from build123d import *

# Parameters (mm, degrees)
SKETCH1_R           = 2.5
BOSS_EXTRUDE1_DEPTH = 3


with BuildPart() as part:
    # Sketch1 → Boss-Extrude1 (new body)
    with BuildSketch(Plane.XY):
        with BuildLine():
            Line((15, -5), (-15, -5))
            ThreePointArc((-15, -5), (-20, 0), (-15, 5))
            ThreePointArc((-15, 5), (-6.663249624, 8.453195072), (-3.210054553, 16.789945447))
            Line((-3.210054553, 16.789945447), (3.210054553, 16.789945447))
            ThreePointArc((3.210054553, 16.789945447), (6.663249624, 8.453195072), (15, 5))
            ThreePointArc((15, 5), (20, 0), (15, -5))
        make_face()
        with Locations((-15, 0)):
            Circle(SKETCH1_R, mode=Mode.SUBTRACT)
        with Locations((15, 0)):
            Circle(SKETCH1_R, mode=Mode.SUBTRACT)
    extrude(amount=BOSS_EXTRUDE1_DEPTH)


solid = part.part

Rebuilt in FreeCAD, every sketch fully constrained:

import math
import FreeCAD as App
import Part
import Sketcher
Q = App.Units.Quantity

doc = App.newDocument("Part")
body = doc.addObject("PartDesign::Body", "Body")

sketch1 = body.newObject("Sketcher::SketchObject", "Sketch")
sketch1.AttachmentSupport = (doc.getObject("XY_Plane"), [""])
sketch1.MapMode = "FlatFace"
sketch1.addGeometry([
    Part.LineSegment(App.Vector(-15, -5, 0), App.Vector(15, -5, 0)),
    Part.ArcOfCircle(Part.Circle(App.Vector(15, 0, 0), App.Vector(0, 0, 1), 5), math.radians(-90), math.radians(90)),
    Part.ArcOfCircle(Part.Circle(App.Vector(15, 16.789945, 0), App.Vector(0, 0, 1), 11.789945), math.radians(180), math.radians(270)),
    Part.LineSegment(App.Vector(3.210055, 16.789945, 0), App.Vector(-3.210055, 16.789945, 0)),
    Part.ArcOfCircle(Part.Circle(App.Vector(-15, 16.789945, 0), App.Vector(0, 0, 1), 11.789945), math.radians(-90), math.radians(0)),
    Part.ArcOfCircle(Part.Circle(App.Vector(-15, 0, 0), App.Vector(0, 0, 1), 5), math.radians(90), math.radians(270)),
    Part.Circle(App.Vector(15, 0, 0), App.Vector(0, 0, 1), 2.5),
    Part.Circle(App.Vector(-15, 0, 0), App.Vector(0, 0, 1), 2.5),
], False)
sketch1.addConstraint([
    Sketcher.Constraint("Tangent", 0, 2, 1, 1),
    Sketcher.Constraint("Tangent", 1, 2, 2, 2),
    Sketcher.Constraint("Coincident", 2, 1, 3, 1),
    Sketcher.Constraint("Coincident", 3, 2, 4, 2),
    Sketcher.Constraint("Tangent", 4, 1, 5, 1),
    Sketcher.Constraint("Tangent", 5, 2, 0, 1),
    Sketcher.Constraint("Horizontal", 0),
    Sketcher.Constraint("Horizontal", 3),
    Sketcher.Constraint("Coincident", 6, 3, 1, 3),
    Sketcher.Constraint("Coincident", 7, 3, 5, 3),
    Sketcher.Constraint("Equal", 2, 4),
    Sketcher.Constraint("Equal", 1, 5),
    Sketcher.Constraint("Equal", 6, 7),
    Sketcher.Constraint("Symmetric", 1, 3, 5, 3, -1, 1),
    Sketcher.Constraint("Horizontal", 4, 3, 2, 1),
    Sketcher.Constraint("Vertical", 1, 3, 2, 3),
    Sketcher.Constraint("Vertical", 4, 3, 5, 3),
    Sketcher.Constraint("Diameter", 6, Q("5 mm")),
    Sketcher.Constraint("Radius", 1, Q("5 mm")),
    Sketcher.Constraint("DistanceX", 0, 1, 0, 2, Q("30 mm")),
    Sketcher.Constraint("Radius", 2, Q("11.789945 mm")),
])
pad1 = body.newObject("PartDesign::Pad", "Pad")
pad1.Profile = sketch1
pad1.Length = 3

doc.recompute()
